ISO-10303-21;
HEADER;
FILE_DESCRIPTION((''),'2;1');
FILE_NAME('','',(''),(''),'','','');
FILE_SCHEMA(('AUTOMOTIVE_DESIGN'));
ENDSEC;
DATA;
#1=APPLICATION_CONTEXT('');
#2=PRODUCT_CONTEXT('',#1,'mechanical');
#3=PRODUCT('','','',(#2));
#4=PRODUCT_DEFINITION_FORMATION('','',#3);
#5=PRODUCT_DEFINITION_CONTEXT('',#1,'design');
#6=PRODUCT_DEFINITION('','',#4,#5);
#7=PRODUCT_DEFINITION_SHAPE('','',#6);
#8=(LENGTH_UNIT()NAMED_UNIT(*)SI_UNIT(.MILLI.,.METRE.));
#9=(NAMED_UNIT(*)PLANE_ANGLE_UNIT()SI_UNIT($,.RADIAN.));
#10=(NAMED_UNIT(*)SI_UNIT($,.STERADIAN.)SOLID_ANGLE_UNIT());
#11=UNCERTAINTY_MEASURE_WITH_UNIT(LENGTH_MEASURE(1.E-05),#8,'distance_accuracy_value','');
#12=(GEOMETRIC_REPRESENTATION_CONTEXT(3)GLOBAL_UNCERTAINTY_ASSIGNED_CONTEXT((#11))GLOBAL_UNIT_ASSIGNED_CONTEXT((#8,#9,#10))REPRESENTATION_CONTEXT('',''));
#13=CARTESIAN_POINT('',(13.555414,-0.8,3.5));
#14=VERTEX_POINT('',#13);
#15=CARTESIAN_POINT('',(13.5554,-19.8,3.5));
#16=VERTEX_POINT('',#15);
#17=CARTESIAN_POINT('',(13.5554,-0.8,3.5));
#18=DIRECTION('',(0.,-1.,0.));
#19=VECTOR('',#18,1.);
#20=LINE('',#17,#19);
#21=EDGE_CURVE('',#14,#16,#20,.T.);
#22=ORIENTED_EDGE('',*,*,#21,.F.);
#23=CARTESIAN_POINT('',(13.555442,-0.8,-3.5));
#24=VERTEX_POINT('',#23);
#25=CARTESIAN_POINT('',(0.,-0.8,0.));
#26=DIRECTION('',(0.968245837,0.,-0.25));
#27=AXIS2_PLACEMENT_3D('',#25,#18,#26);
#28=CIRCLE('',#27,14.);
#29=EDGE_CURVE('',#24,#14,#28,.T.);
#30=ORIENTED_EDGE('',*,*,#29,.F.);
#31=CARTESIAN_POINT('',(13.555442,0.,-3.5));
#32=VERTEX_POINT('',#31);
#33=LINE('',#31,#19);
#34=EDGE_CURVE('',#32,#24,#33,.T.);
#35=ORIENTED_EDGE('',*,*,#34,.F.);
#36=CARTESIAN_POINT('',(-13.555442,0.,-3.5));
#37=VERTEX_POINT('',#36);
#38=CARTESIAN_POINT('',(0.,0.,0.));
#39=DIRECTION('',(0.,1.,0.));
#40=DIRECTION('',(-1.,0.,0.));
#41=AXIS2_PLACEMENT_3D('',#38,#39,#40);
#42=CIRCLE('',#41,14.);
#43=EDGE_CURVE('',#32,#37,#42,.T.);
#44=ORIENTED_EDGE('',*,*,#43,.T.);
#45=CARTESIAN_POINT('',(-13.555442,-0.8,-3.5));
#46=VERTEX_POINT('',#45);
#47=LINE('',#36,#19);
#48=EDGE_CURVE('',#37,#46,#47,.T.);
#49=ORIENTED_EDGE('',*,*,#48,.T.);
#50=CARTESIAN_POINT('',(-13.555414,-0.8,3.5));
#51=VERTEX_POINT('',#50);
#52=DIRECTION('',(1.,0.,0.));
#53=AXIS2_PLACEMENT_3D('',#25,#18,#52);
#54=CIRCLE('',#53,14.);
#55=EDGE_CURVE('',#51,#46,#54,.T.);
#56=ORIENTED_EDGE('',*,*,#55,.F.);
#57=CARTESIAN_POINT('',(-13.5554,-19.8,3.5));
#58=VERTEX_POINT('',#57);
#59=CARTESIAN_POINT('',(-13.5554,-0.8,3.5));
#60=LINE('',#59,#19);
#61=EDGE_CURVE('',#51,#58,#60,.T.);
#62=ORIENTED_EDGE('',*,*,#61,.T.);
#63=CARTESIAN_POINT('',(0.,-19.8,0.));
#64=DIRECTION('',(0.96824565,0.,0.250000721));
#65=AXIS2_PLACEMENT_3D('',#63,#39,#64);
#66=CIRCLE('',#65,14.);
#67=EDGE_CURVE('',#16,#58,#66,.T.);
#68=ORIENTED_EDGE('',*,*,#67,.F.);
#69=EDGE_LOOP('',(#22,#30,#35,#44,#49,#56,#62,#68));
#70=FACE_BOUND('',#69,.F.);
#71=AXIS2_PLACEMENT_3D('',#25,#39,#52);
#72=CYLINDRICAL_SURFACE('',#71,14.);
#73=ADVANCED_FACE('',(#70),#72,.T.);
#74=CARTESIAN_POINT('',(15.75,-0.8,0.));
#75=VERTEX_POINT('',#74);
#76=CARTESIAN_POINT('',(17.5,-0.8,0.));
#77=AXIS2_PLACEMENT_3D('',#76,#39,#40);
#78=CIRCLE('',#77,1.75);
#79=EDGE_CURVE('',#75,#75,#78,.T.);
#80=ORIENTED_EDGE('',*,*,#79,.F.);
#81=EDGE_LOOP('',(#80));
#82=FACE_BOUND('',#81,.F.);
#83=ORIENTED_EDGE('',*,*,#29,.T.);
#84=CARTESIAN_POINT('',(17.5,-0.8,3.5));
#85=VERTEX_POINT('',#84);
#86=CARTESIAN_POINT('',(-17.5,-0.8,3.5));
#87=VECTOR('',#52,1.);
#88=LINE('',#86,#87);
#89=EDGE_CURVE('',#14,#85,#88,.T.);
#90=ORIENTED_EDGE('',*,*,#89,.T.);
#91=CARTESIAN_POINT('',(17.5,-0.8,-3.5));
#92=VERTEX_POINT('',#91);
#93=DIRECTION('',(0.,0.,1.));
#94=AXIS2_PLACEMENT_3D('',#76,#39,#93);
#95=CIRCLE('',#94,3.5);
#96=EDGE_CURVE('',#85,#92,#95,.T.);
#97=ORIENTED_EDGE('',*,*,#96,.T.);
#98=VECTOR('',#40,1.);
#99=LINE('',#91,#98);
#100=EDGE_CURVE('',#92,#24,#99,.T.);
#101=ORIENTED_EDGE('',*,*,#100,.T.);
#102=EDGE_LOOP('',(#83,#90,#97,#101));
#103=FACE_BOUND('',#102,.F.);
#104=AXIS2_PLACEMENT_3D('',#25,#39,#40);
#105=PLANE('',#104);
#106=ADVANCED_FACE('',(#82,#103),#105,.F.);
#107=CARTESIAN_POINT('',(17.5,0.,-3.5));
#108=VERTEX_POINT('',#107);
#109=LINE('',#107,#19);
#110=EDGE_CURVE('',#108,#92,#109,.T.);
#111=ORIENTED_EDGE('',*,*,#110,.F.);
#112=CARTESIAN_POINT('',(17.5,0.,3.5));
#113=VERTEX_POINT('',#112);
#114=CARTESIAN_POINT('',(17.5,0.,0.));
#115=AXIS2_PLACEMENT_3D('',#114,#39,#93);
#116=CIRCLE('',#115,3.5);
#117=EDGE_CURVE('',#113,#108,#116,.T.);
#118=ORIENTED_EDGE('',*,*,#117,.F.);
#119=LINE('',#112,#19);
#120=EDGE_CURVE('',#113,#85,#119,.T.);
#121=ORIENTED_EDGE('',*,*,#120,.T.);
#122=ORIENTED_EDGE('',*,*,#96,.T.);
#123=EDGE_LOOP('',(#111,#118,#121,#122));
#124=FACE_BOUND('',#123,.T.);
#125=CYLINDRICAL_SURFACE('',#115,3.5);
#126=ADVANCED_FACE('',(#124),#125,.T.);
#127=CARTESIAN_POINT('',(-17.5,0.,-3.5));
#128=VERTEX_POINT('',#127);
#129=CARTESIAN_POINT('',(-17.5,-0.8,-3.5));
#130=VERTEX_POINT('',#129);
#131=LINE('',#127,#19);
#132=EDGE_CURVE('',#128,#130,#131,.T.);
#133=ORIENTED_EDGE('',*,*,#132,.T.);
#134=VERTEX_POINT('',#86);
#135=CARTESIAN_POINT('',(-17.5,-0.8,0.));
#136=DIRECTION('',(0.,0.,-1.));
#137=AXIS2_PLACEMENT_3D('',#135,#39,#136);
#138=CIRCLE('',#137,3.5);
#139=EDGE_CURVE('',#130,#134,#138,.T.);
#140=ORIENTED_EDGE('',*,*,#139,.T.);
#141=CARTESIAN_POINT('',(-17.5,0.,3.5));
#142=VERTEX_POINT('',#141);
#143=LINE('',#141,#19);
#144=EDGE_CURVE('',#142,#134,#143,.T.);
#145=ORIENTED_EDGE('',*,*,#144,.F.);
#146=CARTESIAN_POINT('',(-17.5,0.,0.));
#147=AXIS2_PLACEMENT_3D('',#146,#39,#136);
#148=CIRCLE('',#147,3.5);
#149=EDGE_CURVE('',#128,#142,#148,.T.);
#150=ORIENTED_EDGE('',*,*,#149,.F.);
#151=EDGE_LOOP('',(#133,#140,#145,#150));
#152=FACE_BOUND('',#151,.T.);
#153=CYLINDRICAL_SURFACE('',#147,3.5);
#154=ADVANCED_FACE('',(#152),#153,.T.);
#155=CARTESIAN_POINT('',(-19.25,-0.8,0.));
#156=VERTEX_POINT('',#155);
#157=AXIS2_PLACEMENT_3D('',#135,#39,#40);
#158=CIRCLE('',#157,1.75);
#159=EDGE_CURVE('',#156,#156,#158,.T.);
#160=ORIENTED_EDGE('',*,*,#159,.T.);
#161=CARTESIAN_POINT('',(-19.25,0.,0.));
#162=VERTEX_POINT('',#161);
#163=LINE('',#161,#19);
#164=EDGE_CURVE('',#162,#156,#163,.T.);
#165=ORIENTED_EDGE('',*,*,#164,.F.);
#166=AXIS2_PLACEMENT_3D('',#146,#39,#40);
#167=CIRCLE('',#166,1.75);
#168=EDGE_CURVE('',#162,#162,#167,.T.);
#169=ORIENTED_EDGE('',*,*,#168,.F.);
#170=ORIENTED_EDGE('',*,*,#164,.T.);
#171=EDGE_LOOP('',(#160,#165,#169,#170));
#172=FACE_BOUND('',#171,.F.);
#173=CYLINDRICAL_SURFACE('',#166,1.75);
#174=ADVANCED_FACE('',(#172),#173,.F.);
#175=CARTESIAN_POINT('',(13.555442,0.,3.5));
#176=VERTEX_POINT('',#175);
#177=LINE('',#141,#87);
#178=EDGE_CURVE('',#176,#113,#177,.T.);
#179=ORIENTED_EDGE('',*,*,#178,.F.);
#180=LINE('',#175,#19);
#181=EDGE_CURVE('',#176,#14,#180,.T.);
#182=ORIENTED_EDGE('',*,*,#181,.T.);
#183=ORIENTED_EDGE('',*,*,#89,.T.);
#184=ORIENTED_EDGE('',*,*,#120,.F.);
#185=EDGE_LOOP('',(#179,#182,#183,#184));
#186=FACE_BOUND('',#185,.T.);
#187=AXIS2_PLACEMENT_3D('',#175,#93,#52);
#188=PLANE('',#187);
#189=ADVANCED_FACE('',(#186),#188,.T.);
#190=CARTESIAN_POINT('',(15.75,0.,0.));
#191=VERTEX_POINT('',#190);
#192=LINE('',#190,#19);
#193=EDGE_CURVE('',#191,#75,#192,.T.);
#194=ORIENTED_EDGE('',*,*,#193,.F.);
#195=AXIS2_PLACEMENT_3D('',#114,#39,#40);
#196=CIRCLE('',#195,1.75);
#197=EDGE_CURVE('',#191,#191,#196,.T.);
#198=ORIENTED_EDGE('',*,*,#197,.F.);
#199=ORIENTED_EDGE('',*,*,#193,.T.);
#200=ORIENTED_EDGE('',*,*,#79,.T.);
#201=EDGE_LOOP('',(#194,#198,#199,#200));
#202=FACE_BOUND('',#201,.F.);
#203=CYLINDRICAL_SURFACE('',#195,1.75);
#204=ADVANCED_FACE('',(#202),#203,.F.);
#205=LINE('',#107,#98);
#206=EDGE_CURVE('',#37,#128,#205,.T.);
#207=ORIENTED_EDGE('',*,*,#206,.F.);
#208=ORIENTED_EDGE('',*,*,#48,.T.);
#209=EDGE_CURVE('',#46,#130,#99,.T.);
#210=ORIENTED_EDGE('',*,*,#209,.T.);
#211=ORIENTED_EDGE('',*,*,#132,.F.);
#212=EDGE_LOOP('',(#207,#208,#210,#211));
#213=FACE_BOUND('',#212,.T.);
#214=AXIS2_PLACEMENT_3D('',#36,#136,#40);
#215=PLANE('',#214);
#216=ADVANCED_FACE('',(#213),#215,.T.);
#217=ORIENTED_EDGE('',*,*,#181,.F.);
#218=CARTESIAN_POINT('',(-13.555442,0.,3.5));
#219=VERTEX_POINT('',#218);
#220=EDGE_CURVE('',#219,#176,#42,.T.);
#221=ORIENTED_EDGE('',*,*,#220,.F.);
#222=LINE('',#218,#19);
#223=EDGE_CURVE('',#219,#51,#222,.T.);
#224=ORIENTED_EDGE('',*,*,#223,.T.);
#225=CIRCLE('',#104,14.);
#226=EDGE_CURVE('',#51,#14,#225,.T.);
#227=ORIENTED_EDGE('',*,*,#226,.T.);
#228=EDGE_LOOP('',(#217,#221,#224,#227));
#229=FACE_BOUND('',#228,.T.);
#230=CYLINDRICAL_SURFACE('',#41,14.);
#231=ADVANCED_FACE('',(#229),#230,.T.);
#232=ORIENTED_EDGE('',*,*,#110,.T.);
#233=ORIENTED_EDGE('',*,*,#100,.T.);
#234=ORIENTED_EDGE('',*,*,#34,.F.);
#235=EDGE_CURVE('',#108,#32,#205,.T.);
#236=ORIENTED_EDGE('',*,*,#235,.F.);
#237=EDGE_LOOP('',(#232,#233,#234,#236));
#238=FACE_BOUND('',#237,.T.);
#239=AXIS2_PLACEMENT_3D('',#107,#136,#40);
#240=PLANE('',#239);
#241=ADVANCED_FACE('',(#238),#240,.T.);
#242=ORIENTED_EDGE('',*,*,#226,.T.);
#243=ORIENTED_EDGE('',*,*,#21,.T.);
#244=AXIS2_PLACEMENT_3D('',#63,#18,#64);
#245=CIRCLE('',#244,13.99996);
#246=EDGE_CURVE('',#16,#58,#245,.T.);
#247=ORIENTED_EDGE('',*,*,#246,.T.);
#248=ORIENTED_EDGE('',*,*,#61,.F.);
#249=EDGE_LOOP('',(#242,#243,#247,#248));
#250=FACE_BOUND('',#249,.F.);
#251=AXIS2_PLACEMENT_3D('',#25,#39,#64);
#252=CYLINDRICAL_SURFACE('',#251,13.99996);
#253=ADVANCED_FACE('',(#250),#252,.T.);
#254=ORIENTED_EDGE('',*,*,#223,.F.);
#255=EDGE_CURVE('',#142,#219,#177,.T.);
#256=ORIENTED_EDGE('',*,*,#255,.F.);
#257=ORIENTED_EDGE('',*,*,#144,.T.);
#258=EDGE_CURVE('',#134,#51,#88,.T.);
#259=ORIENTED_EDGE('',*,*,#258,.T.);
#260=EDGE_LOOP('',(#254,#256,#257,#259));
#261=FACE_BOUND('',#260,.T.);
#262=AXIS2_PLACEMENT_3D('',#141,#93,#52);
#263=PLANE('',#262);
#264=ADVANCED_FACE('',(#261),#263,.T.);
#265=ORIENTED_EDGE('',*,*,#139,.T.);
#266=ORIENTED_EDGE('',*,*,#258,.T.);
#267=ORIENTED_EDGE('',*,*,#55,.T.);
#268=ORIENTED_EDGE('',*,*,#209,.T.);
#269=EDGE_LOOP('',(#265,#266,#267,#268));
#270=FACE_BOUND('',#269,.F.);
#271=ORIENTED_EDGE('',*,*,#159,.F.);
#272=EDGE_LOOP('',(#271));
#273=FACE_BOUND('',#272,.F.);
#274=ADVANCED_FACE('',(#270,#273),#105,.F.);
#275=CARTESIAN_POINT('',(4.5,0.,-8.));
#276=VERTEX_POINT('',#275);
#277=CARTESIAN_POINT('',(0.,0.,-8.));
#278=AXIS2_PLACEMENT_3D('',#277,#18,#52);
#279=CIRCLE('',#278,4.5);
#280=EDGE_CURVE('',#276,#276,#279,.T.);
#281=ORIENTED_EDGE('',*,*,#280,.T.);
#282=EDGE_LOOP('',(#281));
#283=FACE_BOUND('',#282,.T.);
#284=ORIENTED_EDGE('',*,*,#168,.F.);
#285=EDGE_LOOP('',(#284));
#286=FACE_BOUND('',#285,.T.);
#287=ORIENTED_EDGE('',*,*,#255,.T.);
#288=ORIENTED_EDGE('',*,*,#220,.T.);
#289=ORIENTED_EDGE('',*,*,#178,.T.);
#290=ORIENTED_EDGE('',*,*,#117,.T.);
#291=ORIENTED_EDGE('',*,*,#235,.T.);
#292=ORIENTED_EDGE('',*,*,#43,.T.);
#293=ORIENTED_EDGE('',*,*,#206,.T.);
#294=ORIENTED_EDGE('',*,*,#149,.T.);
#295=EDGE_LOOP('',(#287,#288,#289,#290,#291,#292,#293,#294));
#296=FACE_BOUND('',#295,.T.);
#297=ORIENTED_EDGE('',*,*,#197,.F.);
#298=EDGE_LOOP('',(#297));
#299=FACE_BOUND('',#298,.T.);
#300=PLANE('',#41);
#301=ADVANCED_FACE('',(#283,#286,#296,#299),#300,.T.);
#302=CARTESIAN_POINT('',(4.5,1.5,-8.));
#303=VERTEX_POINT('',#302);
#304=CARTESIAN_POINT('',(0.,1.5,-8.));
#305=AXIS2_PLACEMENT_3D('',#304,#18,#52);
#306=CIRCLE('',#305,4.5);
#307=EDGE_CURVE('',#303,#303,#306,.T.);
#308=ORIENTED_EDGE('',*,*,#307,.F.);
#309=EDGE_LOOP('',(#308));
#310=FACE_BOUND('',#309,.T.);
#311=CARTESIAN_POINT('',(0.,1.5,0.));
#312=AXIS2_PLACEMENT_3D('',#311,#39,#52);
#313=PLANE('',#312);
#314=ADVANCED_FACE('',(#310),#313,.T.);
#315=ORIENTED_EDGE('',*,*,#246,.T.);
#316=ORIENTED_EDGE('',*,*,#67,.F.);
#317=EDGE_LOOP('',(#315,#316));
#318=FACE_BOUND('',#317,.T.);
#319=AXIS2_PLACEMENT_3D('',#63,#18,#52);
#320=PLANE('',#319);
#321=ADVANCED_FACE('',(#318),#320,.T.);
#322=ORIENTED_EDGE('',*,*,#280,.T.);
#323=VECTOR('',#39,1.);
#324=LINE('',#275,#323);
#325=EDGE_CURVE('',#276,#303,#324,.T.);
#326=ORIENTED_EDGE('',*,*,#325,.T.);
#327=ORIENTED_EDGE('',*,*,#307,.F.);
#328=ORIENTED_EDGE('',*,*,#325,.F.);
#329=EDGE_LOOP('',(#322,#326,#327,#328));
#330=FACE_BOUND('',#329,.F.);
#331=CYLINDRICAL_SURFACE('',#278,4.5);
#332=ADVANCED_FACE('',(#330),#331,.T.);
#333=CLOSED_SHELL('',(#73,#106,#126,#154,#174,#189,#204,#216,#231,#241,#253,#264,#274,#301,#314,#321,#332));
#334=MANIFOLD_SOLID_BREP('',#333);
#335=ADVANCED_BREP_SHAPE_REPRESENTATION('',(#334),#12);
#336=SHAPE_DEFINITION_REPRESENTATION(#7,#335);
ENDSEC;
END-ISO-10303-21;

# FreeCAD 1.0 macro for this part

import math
import FreeCAD as App
import Part
import Sketcher
from FreeCAD import Vector
Q = App.Units.Quantity

doc = App.newDocument("Part")
body = doc.addObject("PartDesign::Body", "Body")

# Sketch on XZ plane
sketch1 = body.newObject("Sketcher::SketchObject", "Sketch")
sketch1.AttachmentSupport = (doc.getObject("XZ_Plane"), [""])
sketch1.MapMode = "FlatFace"
sketch1.addGeometry([
    Part.ArcOfCircle(Part.Circle(Vector(-17.5, 0, 0), Vector(0, 0, 1), 3.5), math.radians(90), math.radians(270)),  # 0
    Part.LineSegment(Vector(-17.5, 3.5, 0), Vector(-13.6, 3.5, 0)),  # 1
    Part.ArcOfCircle(Part.Circle(Vector(0, 0, 0), Vector(0, 0, 1), 14), math.radians(14), math.radians(166)),  # 2
    Part.LineSegment(Vector(13.6, 3.5, 0), Vector(17.5, 3.5, 0)),  # 3
    Part.ArcOfCircle(Part.Circle(Vector(17.5, 0, 0), Vector(0, 0, 1), 3.5), math.radians(-90), math.radians(90)),  # 4
    Part.LineSegment(Vector(17.5, -3.5, 0), Vector(13.6, -3.5, 0)),  # 5
    Part.ArcOfCircle(Part.Circle(Vector(0, 0, 0), Vector(0, 0, 1), 14), math.radians(-166), math.radians(-14)),  # 6
    Part.LineSegment(Vector(-13.6, -3.5, 0), Vector(-17.5, -3.5, 0)),  # 7
    Part.Circle(Vector(-17.5, 0, 0), Vector(0, 0, 1), 1.8),  # 8
    Part.Circle(Vector(17.5, 0, 0), Vector(0, 0, 1), 1.8),  # 9
], False)
sketch1.addConstraint([
    Sketcher.Constraint("Tangent", 0, 1, 1, 1),
    Sketcher.Constraint("Coincident", 1, 2, 2, 2),
    Sketcher.Constraint("Coincident", 2, 1, 3, 1),
    Sketcher.Constraint("Tangent", 3, 2, 4, 2),
    Sketcher.Constraint("Tangent", 4, 1, 5, 1),
    Sketcher.Constraint("Coincident", 5, 2, 6, 2),
    Sketcher.Constraint("Coincident", 6, 1, 7, 1),
    Sketcher.Constraint("Tangent", 7, 2, 0, 2),
    Sketcher.Constraint("Horizontal", 1),
    Sketcher.Constraint("Horizontal", 3),
    Sketcher.Constraint("Horizontal", 5),
    Sketcher.Constraint("Horizontal", 7),
    Sketcher.Constraint("Coincident", 2, 3, -1, 1),
    Sketcher.Constraint("Coincident", 6, 3, -1, 1),
    Sketcher.Constraint("Coincident", 8, 3, 0, 3),
    Sketcher.Constraint("Coincident", 9, 3, 4, 3),
    Sketcher.Constraint("Equal", 0, 4),
    Sketcher.Constraint("Equal", 2, 6),
    Sketcher.Constraint("Equal", 8, 9),
    Sketcher.Constraint("Symmetric", 0, 3, 4, 3, -1, 1),
    Sketcher.Constraint("PointOnObject", 0, 3, -1),
    Sketcher.Constraint("Radius", 2, Q("14 mm")),
    Sketcher.Constraint("Diameter", 8, Q("3.5 mm")),
    Sketcher.Constraint("Radius", 0, Q("3.5 mm")),
    Sketcher.Constraint("DistanceX", 0, 3, -1, 1, Q("17.5 mm")),
])
pad1 = body.newObject("PartDesign::Pad", "Pad")
pad1.Profile = sketch1
pad1.Length = 0.8

# Sketch on XZ plane
sketch2 = body.newObject("Sketcher::SketchObject", "Sketch001")
sketch2.AttachmentSupport = (doc.getObject("XZ_Plane"), [""])
sketch2.MapMode = "FlatFace"
sketch2.addGeometry(Part.Circle(Vector(0, -8, 0), Vector(0, 0, 1), 4.5), False)
sketch2.addConstraint([
    Sketcher.Constraint("PointOnObject", 0, 3, -2),
    Sketcher.Constraint("Diameter", 0, Q("9 mm")),
    Sketcher.Constraint("DistanceY", 0, 3, -1, 1, Q("8 mm")),
])
pad2 = body.newObject("PartDesign::Pad", "Pad001")
pad2.Profile = sketch2
pad2.Length = 1.5
pad2.Reversed = True

# Sketch on XZ plane
sketch3 = body.newObject("Sketcher::SketchObject", "Sketch002")
sketch3.AttachmentSupport = (doc.getObject("XZ_Plane"), [""])
sketch3.MapMode = "FlatFace"
sketch3.AttachmentOffset = App.Placement(Vector(0, 0, 0.8), App.Rotation())
sketch3.addGeometry(Part.Circle(Vector(0, 0, 0), Vector(0, 0, 1), 14), False)
sketch3.addConstraint([
    Sketcher.Constraint("Coincident", 0, 3, -1, 1),
    Sketcher.Constraint("Diameter", 0, Q("28 mm")),
])
pad3 = body.newObject("PartDesign::Pad", "Pad002")
pad3.Profile = sketch3
pad3.Length = 19

doc.recompute()
